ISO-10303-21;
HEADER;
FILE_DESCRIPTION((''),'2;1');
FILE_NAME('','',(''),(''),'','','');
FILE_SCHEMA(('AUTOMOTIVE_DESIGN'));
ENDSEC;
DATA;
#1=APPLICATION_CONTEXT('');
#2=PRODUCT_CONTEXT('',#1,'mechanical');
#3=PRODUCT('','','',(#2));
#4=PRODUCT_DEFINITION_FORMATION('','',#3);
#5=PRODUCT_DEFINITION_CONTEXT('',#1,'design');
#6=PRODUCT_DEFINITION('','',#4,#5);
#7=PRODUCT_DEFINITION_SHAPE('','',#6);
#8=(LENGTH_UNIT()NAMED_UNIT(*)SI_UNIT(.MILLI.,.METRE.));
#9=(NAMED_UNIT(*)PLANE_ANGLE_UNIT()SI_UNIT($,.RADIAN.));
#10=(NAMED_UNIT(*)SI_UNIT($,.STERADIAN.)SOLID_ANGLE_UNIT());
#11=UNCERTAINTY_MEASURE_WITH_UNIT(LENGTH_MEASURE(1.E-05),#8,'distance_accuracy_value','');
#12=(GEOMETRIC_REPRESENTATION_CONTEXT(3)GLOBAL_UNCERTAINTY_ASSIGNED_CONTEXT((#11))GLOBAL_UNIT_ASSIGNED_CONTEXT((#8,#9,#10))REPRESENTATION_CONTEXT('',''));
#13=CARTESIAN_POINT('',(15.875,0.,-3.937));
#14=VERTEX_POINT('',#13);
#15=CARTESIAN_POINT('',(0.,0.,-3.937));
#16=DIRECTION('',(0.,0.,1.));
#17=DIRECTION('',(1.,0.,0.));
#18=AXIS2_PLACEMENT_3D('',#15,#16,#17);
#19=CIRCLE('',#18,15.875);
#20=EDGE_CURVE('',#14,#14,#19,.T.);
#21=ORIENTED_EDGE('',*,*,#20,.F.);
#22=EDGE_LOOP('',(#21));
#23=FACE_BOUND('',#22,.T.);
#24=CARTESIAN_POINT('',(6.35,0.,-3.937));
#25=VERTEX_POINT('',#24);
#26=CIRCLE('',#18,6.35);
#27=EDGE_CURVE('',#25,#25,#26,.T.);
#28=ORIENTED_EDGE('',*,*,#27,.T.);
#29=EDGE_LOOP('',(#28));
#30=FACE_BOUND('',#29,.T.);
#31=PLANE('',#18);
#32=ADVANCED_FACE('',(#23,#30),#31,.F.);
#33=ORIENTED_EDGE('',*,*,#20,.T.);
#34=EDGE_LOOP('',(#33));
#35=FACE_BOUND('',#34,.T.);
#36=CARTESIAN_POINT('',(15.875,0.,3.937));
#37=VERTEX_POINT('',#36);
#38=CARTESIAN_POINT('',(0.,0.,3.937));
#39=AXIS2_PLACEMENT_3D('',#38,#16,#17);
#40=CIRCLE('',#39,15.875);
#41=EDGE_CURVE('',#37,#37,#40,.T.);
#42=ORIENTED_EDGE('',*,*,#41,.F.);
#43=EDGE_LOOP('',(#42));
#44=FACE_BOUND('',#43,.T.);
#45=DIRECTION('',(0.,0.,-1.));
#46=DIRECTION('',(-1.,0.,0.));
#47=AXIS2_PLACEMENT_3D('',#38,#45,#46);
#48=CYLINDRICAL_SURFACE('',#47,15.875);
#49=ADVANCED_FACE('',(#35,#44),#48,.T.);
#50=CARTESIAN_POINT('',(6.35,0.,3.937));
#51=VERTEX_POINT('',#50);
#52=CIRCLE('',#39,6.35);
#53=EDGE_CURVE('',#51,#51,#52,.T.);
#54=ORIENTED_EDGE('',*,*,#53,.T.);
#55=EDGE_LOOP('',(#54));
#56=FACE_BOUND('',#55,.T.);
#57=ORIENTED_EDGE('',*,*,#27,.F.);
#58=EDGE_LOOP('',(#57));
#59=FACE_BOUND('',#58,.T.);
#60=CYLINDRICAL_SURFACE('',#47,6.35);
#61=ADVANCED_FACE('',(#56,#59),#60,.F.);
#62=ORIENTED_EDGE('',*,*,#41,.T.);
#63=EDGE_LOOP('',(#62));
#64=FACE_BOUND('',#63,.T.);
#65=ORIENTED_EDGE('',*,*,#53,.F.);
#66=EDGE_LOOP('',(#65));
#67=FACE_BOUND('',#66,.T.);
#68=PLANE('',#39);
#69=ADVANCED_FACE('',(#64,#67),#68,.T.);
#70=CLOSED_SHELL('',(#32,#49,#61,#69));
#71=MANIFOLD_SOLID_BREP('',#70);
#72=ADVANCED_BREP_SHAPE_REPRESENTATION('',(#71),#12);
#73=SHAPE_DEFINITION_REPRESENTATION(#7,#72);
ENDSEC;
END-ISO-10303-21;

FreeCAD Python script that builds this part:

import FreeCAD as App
import Part
import Sketcher
Q = App.Units.Quantity

doc = App.newDocument("Part")
params = doc.addObject("Spreadsheet::Sheet", "Params")
for row, (alias, value) in enumerate([
    ("sketch1_diameter", "0.5 in"),
    ("sketch1_diameter2", "1.25 in"),
    ("pad1_length", "0.31 in"),
], start=1):
    params.set(f"A{row}", alias)
    params.set(f"B{row}", "=" + value)
    params.setAlias(f"B{row}", alias)

body = doc.addObject("PartDesign::Body", "Body")

# Sketch on XY plane
sketch1 = doc.addObject("Sketcher::SketchObject", "Sketch")
body.addObject(sketch1)
sketch1.AttachmentSupport = (doc.XY_Plane, [""])
sketch1.MapMode = "FlatFace"
sketch1.addGeometry([
    Part.Circle(App.Vector(0, 0, 0), App.Vector(0, 0, 1), 15.875),
    Part.Circle(App.Vector(0, 0, 0), App.Vector(0, 0, 1), 6.35),
], False)
sketch1.addConstraint([
    Sketcher.Constraint("Coincident", 0, 3, -1, 1),
    Sketcher.Constraint("Coincident", 1, 3, -1, 1),
    Sketcher.Constraint("Diameter", 1, Q("0.5 in")),
    Sketcher.Constraint("Diameter", 0, Q("1.25 in")),
])
sketch1.setExpression("Constraints[2]", "Params.sketch1_diameter")
sketch1.setExpression("Constraints[3]", "Params.sketch1_diameter2")
pad1 = doc.addObject("PartDesign::Pad", "Pad")
body.addObject(pad1)
pad1.Profile = sketch1
pad1.setExpression("Length", "Params.pad1_length")
pad1.Midplane = True

doc.recompute()
